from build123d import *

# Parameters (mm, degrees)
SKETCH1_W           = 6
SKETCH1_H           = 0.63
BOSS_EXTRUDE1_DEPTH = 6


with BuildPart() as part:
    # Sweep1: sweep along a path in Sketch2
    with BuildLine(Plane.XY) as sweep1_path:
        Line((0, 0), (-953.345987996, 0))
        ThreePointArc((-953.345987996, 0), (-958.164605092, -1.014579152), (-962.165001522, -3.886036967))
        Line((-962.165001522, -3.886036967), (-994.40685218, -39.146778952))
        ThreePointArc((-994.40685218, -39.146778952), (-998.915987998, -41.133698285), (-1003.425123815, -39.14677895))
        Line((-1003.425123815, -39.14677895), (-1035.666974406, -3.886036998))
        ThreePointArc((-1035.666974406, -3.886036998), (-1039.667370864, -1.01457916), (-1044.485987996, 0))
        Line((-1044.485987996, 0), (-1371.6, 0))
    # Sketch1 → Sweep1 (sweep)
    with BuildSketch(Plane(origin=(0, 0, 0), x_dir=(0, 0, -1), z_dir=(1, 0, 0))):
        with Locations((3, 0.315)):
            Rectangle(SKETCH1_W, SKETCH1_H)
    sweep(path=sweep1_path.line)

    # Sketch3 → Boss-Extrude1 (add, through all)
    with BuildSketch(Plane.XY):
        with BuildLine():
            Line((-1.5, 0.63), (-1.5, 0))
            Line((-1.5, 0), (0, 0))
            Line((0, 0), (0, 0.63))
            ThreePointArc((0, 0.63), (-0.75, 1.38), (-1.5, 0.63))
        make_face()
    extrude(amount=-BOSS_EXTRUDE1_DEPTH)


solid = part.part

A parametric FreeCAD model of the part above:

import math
import FreeCAD as App
import Part
import Sketcher

V = App.Vector

doc = App.newDocument("Part")
params = doc.addObject("Spreadsheet::Sheet", "Params")
for row, (alias, value) in enumerate([
    ("sketch1_height", "6 mm"),
    ("sketch1_width", "0.63 mm"),
    ("sketch2_radius", "11.95 mm"),
    ("sketch2_radius2", "6.11 mm"),
    ("sketch3_radius", "0.75 mm"),
    ("sketch3_height", "0.63 mm"),
], start=1):
    params.set(f"A{row}", alias)
    params.set(f"B{row}", "=" + value)
    params.setAlias(f"B{row}", alias)

body = doc.addObject("PartDesign::Body", "Body")

sketch1 = body.newObject("Sketcher::SketchObject", "Sketch")
sketch1.AttachmentSupport = (doc.getObject("YZ_Plane"), [""])
sketch1.MapMode = "FlatFace"
sketch1.addGeometry([
    Part.LineSegment(V(0.63, 0, 0), V(0, 0, 0)),
    Part.LineSegment(V(0, 0, 0), V(0, -6, 0)),
    Part.LineSegment(V(0, -6, 0), V(0.63, -6, 0)),
    Part.LineSegment(V(0.63, -6, 0), V(0.63, 0, 0)),
], False)
sketch1.addConstraint([
    Sketcher.Constraint("Coincident", 0, 2, 1, 1),
    Sketcher.Constraint("Coincident", 1, 2, 2, 1),
    Sketcher.Constraint("Coincident", 2, 2, 3, 1),
    Sketcher.Constraint("Coincident", 3, 2, 0, 1),
    Sketcher.Constraint("Horizontal", 0),
    Sketcher.Constraint("Vertical", 1),
    Sketcher.Constraint("Horizontal", 2),
    Sketcher.Constraint("Vertical", 3),
    Sketcher.Constraint("Coincident", 0, 2, -1, 1),
    Sketcher.Constraint("DistanceY", 1, 2, 1, 1, 6.0),
    Sketcher.Constraint("DistanceX", 0, 2, 0, 1, 0.63),
])
sketch1.setExpression("Constraints[9]", "Params.sketch1_height")
sketch1.setExpression("Constraints[10]", "Params.sketch1_width")

sketch2 = body.newObject("Sketcher::SketchObject", "Sketch001")
sketch2.AttachmentSupport = (doc.getObject("XY_Plane"), [""])
sketch2.MapMode = "FlatFace"
sketch2.addGeometry([
    Part.LineSegment(V(0, 0, 0), V(-953.345988, 0, 0)),
    Part.ArcOfCircle(Part.Circle(V(-953.345988, -11.95, 0), V(0, 0, 1), 11.95), math.radians(90), math.radians(137.56071)),
    Part.LineSegment(V(-962.165002, -3.886037, 0), V(-994.406852, -39.146779, 0)),
    Part.ArcOfCircle(Part.Circle(V(-998.915988, -35.023698, 0), V(0, 0, 1), 6.11), math.radians(-137.56071), math.radians(-42.43929)),
    Part.LineSegment(V(-1003.425124, -39.146779, 0), V(-1035.666974, -3.886037, 0)),
    Part.ArcOfCircle(Part.Circle(V(-1044.485988, -11.95, 0), V(0, 0, 1), 11.95), math.radians(42.43929), math.radians(90)),
    Part.LineSegment(V(-1044.485988, 0, 0), V(-1371.6, 0, 0)),
], False)
sketch2.addConstraint([
    Sketcher.Constraint("Tangent", 0, 2, 1, 1),
    Sketcher.Constraint("Tangent", 1, 2, 2, 1),
    Sketcher.Constraint("Tangent", 2, 2, 3, 2),
    Sketcher.Constraint("Tangent", 3, 1, 4, 1),
    Sketcher.Constraint("Tangent", 4, 2, 5, 1),
    Sketcher.Constraint("Tangent", 5, 2, 6, 1),
    Sketcher.Constraint("Horizontal", 0),
    Sketcher.Constraint("Horizontal", 6),
    Sketcher.Constraint("Coincident", 0, 1, -1, 1),
    Sketcher.Constraint("Equal", 1, 5),
    Sketcher.Constraint("PointOnObject", 5, 2, -1),
    Sketcher.Constraint("Horizontal", 2, 2, 3, 1),
    Sketcher.Constraint("Radius", 1, 11.95),
    Sketcher.Constraint("Radius", 3, 6.11),
    Sketcher.Constraint("DistanceX", 6, 2, -1, 1, 1371.6),
    Sketcher.Constraint("DistanceX", 3, 3, 1, 3, 45.57),
    Sketcher.Constraint("DistanceX", 1, 2, -1, 1, 962.165002),
    Sketcher.Constraint("DistanceY", 3, 3, -1, 1, 35.023698),
])
sketch2.setExpression("Constraints[12]", "Params.sketch2_radius")
sketch2.setExpression("Constraints[13]", "Params.sketch2_radius2")
doc.recompute()

additivepipe = body.newObject("PartDesign::AdditivePipe", "AdditivePipe")
additivepipe.Profile = sketch1
additivepipe.Spine = (sketch2, ["Edge1", "Edge2", "Edge3", "Edge4", "Edge5", "Edge6", "Edge7"])

sketch3 = body.newObject("Sketcher::SketchObject", "Sketch002")
sketch3.AttachmentSupport = (doc.getObject("XY_Plane"), [""])
sketch3.MapMode = "FlatFace"
sketch3.addGeometry([
    Part.LineSegment(V(-1.5, 0.63, 0), V(-1.5, 0, 0)),
    Part.LineSegment(V(-1.5, 0, 0), V(0, 0, 0)),
    Part.LineSegment(V(0, 0, 0), V(0, 0.63, 0)),
    Part.ArcOfCircle(Part.Circle(V(-0.75, 0.63, 0), V(0, 0, 1), 0.75), math.radians(0), math.radians(180)),
], False)
sketch3.addConstraint([
    Sketcher.Constraint("Coincident", 0, 2, 1, 1),
    Sketcher.Constraint("Coincident", 1, 2, 2, 1),
    Sketcher.Constraint("Tangent", 2, 2, 3, 1),
    Sketcher.Constraint("Tangent", 3, 2, 0, 1),
    Sketcher.Constraint("Vertical", 0),
    Sketcher.Constraint("Horizontal", 1),
    Sketcher.Constraint("Vertical", 2),
    Sketcher.Constraint("Coincident", 1, 2, -1, 1),
    Sketcher.Constraint("Radius", 3, 0.75),
    Sketcher.Constraint("DistanceY", 0, 2, 0, 1, 0.63),
])
sketch3.setExpression("Constraints[8]", "Params.sketch3_radius")
sketch3.setExpression("Constraints[9]", "Params.sketch3_height")
pad1 = body.newObject("PartDesign::Pad", "Pad")
pad1.Profile = sketch3
pad1.Type = "UpToLast"
pad1.Reversed = True

doc.recompute()
